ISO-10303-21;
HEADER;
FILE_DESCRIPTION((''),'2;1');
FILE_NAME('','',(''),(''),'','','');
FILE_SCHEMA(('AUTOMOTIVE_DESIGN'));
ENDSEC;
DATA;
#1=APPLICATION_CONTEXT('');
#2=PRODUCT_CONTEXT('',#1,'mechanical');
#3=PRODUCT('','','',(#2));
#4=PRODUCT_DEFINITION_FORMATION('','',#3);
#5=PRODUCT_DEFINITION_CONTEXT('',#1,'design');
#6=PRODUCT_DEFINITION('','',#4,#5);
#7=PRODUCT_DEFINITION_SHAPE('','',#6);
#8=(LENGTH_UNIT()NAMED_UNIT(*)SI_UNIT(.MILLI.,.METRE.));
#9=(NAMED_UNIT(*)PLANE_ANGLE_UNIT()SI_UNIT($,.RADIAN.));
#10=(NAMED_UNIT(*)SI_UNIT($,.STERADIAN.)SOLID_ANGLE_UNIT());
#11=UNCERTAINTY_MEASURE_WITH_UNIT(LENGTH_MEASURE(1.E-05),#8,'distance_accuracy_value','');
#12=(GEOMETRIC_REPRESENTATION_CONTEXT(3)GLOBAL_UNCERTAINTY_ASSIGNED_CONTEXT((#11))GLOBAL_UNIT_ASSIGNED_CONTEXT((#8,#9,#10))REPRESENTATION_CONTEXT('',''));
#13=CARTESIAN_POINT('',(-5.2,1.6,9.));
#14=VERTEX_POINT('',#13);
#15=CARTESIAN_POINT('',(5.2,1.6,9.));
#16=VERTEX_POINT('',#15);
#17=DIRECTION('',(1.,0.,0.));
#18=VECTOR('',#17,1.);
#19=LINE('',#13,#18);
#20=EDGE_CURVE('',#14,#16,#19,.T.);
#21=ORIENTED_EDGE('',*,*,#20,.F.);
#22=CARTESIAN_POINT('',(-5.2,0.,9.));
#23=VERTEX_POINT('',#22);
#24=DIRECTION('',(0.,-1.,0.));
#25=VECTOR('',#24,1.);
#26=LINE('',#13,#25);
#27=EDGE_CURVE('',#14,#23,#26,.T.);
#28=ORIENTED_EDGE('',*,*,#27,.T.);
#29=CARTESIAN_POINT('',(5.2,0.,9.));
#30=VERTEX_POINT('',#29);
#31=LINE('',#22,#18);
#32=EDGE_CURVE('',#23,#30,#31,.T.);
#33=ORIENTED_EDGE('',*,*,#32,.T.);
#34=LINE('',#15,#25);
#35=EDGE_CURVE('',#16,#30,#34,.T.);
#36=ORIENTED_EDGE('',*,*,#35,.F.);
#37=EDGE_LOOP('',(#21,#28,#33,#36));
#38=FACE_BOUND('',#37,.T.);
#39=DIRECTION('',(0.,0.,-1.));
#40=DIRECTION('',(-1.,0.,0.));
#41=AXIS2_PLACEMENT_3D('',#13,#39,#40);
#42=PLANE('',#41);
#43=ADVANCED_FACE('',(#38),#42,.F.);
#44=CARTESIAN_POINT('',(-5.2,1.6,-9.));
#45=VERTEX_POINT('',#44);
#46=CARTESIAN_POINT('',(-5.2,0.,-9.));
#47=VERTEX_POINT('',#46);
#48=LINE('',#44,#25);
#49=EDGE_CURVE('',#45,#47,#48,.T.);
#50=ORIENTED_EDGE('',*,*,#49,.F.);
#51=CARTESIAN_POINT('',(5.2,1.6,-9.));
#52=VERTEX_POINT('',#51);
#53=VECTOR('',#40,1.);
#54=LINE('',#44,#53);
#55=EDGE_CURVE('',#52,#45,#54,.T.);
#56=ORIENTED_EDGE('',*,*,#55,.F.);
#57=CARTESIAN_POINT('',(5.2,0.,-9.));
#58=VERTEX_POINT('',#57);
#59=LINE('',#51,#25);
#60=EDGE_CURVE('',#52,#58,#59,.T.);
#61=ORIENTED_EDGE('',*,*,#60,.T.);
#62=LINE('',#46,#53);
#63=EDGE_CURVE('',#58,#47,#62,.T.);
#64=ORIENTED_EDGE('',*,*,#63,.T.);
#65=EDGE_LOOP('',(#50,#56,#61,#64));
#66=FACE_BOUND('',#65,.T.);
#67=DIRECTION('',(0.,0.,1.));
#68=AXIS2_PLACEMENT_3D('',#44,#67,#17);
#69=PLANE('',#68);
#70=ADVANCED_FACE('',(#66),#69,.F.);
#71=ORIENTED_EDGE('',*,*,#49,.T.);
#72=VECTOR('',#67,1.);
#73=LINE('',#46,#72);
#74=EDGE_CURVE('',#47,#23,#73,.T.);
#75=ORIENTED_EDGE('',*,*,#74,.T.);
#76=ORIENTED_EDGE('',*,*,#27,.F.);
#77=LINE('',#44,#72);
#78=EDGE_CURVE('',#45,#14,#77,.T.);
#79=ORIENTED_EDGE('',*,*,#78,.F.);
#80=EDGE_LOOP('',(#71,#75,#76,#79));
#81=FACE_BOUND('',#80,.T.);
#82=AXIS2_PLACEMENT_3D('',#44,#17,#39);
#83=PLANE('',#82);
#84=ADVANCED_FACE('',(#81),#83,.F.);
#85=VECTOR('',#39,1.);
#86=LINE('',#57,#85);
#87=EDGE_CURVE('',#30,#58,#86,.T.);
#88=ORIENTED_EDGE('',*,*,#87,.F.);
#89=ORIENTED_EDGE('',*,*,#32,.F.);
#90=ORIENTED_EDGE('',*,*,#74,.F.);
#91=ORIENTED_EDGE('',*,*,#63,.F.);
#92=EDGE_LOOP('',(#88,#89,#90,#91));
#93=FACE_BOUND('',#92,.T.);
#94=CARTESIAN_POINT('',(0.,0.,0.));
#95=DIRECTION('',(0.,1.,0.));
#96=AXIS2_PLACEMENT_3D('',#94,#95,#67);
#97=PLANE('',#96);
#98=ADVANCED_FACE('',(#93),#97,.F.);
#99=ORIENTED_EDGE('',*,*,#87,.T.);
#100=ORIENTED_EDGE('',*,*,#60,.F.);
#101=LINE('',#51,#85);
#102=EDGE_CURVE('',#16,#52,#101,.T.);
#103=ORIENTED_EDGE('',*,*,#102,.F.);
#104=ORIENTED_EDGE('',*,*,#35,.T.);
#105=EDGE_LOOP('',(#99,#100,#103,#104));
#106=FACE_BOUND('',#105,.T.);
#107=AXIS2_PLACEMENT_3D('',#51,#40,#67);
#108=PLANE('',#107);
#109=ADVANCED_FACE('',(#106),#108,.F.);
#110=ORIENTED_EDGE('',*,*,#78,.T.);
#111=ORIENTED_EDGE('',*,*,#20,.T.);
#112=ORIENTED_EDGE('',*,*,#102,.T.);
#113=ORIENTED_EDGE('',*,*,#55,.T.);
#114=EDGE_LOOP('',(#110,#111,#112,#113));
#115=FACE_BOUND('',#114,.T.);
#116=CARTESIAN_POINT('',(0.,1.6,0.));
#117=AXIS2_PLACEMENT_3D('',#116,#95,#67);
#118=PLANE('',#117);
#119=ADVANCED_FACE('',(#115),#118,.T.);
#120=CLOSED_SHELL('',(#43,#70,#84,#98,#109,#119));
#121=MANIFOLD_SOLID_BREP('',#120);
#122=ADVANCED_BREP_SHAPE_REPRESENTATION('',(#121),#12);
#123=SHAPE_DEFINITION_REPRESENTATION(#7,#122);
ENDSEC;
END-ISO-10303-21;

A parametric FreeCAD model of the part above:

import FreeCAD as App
import Part
import Sketcher
from FreeCAD import Vector
Q = App.Units.Quantity


def add_polygon(sketch, points):
    """Adds a closed chain of lines whose ends are joined by coincident constraints."""
    first, n = sketch.GeometryCount, len(points)
    for a, b in zip(points, points[1:] + points[:1]):
        sketch.addGeometry(Part.LineSegment(App.Vector(*a, 0), App.Vector(*b, 0)), False)
    for i in range(n):
        sketch.addConstraint(Sketcher.Constraint("Coincident", first + i, 2, first + (i + 1) % n, 1))

doc = App.newDocument("Part")
body = doc.addObject("PartDesign::Body", "Body")

# Sketch on XZ plane
sketch1 = body.newObject("Sketcher::SketchObject", "Sketch")
sketch1.AttachmentSupport = (doc.getObject("XZ_Plane"), [""])
sketch1.MapMode = "FlatFace"
add_polygon(sketch1, [(-5, -9), (-5, 9), (5, 9), (5, -9)])  # lines 0-3
sketch1.addConstraint([
    Sketcher.Constraint("Vertical", 0),
    Sketcher.Constraint("Horizontal", 1),
    Sketcher.Constraint("Vertical", 2),
    Sketcher.Constraint("Horizontal", 3),
    Sketcher.Constraint("Symmetric", 0, 2, 2, 2, -1, 1),
    Sketcher.Constraint("DistanceY", 0, 1, 0, 2, Q("18 mm")),
    Sketcher.Constraint("DistanceX", 1, 1, 1, 2, Q("10.4 mm")),
])
pad1 = body.newObject("PartDesign::Pad", "Pad")
pad1.Profile = sketch1
pad1.Length = 1.6
pad1.Reversed = True

doc.recompute()
